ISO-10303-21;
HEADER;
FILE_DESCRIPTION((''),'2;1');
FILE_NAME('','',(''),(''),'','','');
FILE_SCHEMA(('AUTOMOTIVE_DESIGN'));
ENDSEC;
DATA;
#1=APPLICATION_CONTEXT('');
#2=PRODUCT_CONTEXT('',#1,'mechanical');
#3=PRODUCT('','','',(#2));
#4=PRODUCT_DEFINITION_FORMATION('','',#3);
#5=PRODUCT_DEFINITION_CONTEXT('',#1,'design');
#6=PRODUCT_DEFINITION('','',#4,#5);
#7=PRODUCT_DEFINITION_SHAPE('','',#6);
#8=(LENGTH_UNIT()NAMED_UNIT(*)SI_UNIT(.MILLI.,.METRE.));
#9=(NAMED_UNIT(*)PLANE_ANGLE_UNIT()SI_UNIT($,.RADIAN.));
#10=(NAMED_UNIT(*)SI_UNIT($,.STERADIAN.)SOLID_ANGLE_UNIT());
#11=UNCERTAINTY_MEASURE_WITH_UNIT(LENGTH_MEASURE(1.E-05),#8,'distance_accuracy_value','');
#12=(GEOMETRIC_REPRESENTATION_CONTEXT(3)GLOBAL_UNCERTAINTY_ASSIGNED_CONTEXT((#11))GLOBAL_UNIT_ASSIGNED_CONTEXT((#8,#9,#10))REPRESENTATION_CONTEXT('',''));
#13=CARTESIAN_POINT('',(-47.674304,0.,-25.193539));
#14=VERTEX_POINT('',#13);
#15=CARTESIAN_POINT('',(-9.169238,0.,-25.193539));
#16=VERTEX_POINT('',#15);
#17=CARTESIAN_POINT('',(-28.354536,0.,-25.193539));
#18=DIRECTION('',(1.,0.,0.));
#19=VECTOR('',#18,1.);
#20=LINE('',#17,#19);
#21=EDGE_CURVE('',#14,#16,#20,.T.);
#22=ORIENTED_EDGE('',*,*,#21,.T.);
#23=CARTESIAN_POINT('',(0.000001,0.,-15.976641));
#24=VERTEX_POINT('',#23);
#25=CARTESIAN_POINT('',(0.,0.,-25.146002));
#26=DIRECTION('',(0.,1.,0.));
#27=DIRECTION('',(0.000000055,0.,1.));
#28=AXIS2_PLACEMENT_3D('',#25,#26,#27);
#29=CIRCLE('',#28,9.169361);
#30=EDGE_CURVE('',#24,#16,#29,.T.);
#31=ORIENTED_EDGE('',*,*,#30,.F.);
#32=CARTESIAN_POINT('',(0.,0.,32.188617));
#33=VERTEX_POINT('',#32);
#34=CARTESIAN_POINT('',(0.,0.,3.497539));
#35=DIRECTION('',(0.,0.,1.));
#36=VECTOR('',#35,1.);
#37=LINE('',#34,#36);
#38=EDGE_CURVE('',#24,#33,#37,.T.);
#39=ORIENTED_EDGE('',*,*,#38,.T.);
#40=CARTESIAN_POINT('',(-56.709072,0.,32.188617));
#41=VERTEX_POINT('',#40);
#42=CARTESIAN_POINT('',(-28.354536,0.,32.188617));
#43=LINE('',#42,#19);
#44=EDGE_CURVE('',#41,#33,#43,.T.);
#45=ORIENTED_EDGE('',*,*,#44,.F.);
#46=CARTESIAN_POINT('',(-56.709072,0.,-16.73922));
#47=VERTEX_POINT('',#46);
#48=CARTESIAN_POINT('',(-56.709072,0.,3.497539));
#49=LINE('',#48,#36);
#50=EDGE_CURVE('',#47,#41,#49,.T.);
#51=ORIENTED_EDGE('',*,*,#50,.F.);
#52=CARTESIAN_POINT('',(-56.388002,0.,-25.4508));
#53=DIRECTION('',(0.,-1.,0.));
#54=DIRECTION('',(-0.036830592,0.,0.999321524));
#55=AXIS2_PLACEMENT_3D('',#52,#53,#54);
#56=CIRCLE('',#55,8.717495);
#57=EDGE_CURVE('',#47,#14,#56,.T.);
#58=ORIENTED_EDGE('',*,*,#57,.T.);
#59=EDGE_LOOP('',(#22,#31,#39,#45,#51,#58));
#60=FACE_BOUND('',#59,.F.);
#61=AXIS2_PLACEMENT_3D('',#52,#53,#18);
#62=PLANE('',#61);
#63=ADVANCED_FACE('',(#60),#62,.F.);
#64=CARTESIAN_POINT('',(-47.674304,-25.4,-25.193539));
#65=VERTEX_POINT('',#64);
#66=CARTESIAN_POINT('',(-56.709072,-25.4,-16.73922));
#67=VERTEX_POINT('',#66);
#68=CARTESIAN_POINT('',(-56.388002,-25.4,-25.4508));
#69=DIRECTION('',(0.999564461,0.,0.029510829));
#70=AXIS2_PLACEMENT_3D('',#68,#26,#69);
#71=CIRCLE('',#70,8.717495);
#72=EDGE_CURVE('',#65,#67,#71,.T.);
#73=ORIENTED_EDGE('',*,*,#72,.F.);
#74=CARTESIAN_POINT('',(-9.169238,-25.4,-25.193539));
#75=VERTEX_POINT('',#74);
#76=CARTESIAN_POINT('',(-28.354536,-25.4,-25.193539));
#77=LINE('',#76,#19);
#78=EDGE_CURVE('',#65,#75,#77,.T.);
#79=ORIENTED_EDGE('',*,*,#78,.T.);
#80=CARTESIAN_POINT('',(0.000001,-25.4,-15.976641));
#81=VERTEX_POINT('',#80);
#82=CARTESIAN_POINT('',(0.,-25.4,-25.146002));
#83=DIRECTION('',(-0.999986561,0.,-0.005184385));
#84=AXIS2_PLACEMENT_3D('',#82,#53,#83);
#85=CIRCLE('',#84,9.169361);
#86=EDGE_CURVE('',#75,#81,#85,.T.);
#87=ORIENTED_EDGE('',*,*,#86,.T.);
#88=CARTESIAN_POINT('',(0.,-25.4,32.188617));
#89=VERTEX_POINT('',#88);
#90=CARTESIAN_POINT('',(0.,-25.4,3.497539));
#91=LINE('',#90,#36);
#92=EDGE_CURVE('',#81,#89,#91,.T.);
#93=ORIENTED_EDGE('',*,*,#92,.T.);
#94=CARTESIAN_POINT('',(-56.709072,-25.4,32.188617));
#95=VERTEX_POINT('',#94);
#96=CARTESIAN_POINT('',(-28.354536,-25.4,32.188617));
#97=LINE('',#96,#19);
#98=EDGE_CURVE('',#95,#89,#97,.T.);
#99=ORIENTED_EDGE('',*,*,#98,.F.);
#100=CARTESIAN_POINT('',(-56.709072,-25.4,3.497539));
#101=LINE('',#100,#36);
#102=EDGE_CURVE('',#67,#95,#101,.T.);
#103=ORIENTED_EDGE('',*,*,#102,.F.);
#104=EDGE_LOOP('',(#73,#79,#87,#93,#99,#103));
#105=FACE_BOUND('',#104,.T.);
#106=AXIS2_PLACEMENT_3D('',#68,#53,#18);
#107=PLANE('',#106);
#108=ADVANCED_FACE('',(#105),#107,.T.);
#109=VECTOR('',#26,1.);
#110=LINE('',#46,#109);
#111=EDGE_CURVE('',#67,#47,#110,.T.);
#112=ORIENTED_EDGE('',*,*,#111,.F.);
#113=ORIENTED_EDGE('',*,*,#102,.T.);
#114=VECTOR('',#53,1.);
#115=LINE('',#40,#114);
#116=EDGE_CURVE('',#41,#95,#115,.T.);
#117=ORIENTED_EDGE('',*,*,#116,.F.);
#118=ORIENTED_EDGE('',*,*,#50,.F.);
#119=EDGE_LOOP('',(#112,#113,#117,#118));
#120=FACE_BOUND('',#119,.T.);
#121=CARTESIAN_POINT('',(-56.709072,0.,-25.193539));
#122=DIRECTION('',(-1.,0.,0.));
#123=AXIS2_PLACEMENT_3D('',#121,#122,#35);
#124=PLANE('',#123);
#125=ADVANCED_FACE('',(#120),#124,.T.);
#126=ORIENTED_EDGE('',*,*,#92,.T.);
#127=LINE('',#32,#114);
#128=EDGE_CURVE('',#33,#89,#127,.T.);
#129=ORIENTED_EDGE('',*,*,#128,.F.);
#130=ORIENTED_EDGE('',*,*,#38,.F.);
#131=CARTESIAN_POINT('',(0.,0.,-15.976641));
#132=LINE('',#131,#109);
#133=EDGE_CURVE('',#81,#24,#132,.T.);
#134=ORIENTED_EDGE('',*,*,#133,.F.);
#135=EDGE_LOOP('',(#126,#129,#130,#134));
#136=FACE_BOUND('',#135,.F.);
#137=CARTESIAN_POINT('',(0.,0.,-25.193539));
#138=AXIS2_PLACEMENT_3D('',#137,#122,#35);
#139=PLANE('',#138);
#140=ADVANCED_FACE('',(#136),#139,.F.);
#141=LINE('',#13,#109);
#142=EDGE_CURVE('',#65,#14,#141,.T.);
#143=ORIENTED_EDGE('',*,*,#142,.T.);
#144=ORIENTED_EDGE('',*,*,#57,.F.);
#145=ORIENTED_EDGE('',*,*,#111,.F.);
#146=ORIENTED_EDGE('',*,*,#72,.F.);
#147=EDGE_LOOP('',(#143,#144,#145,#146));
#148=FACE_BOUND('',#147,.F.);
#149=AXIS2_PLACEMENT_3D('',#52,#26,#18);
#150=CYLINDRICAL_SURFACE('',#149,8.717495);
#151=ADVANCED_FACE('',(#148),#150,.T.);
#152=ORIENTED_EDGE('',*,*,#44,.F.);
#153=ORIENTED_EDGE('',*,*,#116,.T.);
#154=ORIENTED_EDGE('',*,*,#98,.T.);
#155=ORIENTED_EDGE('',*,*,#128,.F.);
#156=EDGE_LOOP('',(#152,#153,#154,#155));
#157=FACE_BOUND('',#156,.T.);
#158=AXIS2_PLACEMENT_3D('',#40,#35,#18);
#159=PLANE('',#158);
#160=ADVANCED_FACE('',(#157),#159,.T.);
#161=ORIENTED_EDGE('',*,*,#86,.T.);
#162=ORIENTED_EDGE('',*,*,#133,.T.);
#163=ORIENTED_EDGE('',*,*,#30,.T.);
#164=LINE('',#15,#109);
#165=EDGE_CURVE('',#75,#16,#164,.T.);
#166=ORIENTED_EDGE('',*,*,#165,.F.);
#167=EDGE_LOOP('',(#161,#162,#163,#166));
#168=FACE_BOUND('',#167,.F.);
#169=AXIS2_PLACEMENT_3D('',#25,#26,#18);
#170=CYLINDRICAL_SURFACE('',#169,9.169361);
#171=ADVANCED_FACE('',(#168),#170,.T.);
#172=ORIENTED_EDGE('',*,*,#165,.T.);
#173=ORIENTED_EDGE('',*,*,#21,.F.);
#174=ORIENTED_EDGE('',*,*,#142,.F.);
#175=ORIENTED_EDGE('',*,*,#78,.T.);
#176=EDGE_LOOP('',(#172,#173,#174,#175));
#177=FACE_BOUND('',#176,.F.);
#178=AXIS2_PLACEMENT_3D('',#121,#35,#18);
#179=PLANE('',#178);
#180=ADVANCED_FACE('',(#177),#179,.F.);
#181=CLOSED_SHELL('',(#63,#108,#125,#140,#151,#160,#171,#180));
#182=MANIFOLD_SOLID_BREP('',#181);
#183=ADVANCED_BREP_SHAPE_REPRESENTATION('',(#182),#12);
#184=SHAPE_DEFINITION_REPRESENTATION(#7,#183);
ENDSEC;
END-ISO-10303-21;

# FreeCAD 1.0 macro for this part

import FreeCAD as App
import Part
import Sketcher

V = App.Vector
Q = App.Units.Quantity


def add_polygon(sketch, points):
    """Adds a closed chain of lines whose ends are joined by coincident constraints."""
    first, n = sketch.GeometryCount, len(points)
    for a, b in zip(points, points[1:] + points[:1]):
        sketch.addGeometry(Part.LineSegment(App.Vector(*a, 0), App.Vector(*b, 0)), False)
    for i in range(n):
        sketch.addConstraint(Sketcher.Constraint("Coincident", first + i, 2, first + (i + 1) % n, 1))

doc = App.newDocument("Part")
body = doc.addObject("PartDesign::Body", "Body")

# Sketch on XZ plane
sketch1 = body.newObject("Sketcher::SketchObject", "Sketch")
sketch1.AttachmentSupport = (doc.getObject("XZ_Plane"), [""])
sketch1.MapMode = "FlatFace"
add_polygon(sketch1, [(-56.709072, 32.188617), (-56.709072, -25.193539), (0, -25.193539), (0, 32.188617)])  # lines 0-3
sketch1.addConstraint(Sketcher.Constraint("Vertical", 0))
sketch1.addConstraint(Sketcher.Constraint("Horizontal", 1))
sketch1.addConstraint(Sketcher.Constraint("Vertical", 2))
sketch1.addConstraint(Sketcher.Constraint("Horizontal", 3))
sketch1.addConstraint(Sketcher.Constraint("PointOnObject", 1, 2, -2))
sketch1.addConstraint(Sketcher.Constraint("DistanceX", 1, 1, 1, 2, Q("56.709073 mm")))
sketch1.addConstraint(Sketcher.Constraint("DistanceY", 0, 2, 0, 1, Q("57.382157 mm")))
sketch1.addConstraint(Sketcher.Constraint("DistanceY", 0, 2, -1, 1, Q("25.193539 mm")))
pad1 = body.newObject("PartDesign::Pad", "Pad")
pad1.Profile = sketch1
pad1.Length = Q("1 in")

# Sketch on XZ plane
sketch2 = body.newObject("Sketcher::SketchObject", "Sketch001")
sketch2.AttachmentSupport = (doc.getObject("XZ_Plane"), [""])
sketch2.MapMode = "FlatFace"
sketch2.addGeometry(Part.Circle(V(-56.388002, -25.4508, 0), V(0, 0, 1), 8.717495), False)
sketch2.addGeometry(Part.Circle(V(0, -25.146002, 0), V(0, 0, 1), 9.169361), False)
sketch2.addConstraint(Sketcher.Constraint("PointOnObject", 1, 3, -2))
sketch2.addConstraint(Sketcher.Constraint("DistanceX", 0, 3, -1, 1, Q("2.2200001 in")))
sketch2.addConstraint(Sketcher.Constraint("DistanceY", 1, 3, -1, 1, Q("0.9900001 in")))
sketch2.addConstraint(Sketcher.Constraint("Diameter", 0, Q("17.43499 mm")))
sketch2.addConstraint(Sketcher.Constraint("DistanceY", 0, 3, -1, 1, Q("1.002 in")))
sketch2.addConstraint(Sketcher.Constraint("Diameter", 1, Q("18.338722 mm")))
pad2 = body.newObject("PartDesign::Pad", "Pad001")
pad2.Profile = sketch2
pad2.Length = Q("1 in")

doc.recompute()
